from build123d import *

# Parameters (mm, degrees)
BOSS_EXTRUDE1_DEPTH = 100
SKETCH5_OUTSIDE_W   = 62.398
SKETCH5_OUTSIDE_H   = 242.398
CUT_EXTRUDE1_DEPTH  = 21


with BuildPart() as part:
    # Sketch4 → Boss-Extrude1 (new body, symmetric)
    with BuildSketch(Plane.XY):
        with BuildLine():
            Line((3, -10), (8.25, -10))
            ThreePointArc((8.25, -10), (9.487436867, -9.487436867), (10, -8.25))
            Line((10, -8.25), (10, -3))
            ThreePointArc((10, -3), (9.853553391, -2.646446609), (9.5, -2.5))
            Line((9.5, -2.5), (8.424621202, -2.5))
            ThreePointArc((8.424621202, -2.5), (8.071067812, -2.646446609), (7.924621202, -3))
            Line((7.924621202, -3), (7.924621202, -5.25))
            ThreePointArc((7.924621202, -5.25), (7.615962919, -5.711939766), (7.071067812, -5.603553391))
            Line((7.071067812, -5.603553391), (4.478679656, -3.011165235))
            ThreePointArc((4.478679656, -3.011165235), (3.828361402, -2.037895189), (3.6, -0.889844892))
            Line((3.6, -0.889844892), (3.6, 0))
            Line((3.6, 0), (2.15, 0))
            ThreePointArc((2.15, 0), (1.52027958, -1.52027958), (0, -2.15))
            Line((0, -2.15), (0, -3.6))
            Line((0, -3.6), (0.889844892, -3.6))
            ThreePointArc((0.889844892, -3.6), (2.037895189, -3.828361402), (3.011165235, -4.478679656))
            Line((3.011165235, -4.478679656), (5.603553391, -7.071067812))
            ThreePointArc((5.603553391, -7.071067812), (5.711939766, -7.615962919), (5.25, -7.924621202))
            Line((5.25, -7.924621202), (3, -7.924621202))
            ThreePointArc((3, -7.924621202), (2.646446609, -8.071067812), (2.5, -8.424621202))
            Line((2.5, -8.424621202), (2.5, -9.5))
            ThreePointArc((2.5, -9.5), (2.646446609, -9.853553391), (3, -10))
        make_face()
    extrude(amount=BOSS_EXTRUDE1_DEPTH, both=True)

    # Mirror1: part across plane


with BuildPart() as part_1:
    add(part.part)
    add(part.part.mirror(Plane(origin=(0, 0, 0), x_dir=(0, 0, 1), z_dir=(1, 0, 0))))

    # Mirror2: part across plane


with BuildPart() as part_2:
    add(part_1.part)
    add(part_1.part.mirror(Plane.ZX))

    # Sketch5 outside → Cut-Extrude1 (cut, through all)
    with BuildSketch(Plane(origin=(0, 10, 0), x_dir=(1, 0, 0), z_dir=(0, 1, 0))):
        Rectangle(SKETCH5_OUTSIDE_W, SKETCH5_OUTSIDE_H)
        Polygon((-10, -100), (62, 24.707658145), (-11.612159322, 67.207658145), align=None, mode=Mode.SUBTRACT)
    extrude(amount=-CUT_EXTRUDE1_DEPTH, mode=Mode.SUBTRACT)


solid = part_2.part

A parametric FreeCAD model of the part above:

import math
import FreeCAD as App
import Part
import Sketcher
from FreeCAD import Vector
Q = App.Units.Quantity

doc = App.newDocument("Part")
body = doc.addObject("PartDesign::Body", "Body")

# Sketch on XY plane
sketch1 = body.newObject("Sketcher::SketchObject", "Sketch")
sketch1.AttachmentSupport = (doc.getObject("XY_Plane"), [""])
sketch1.MapMode = "FlatFace"
sketch1.addGeometry([
    Part.LineSegment(Vector(3, -10, 0), Vector(8.25, -10, 0)),  # 0
    Part.ArcOfCircle(Part.Circle(Vector(8.25, -8.25, 0), Vector(0, 0, 1), 1.75), math.radians(-90), math.radians(0)),  # 1
    Part.LineSegment(Vector(10, -8.25, 0), Vector(10, -3, 0)),  # 2
    Part.ArcOfCircle(Part.Circle(Vector(9.5, -3, 0), Vector(0, 0, 1), 0.5), math.radians(0), math.radians(90)),  # 3
    Part.LineSegment(Vector(9.5, -2.5, 0), Vector(8.42, -2.5, 0)),  # 4
    Part.ArcOfCircle(Part.Circle(Vector(8.42, -3, 0), Vector(0, 0, 1), 0.5), math.radians(90), math.radians(180)),  # 5
    Part.LineSegment(Vector(7.92, -3, 0), Vector(7.92, -5.25, 0)),  # 6
    Part.ArcOfCircle(Part.Circle(Vector(7.42, -5.25, 0), Vector(0, 0, 1), 0.5), math.radians(-135), math.radians(0)),  # 7
    Part.LineSegment(Vector(7.07, -5.6, 0), Vector(4.48, -3.01, 0)),  # 8
    Part.ArcOfCircle(Part.Circle(Vector(6.6, -0.89, 0), Vector(0, 0, 1), 3), math.radians(180), math.radians(225)),  # 9
    Part.LineSegment(Vector(3.6, -0.89, 0), Vector(3.6, 0, 0)),  # 10
    Part.LineSegment(Vector(3.6, 0, 0), Vector(2.15, 0, 0)),  # 11
    Part.ArcOfCircle(Part.Circle(Vector(0, 0, 0), Vector(0, 0, 1), 2.15), math.radians(-90), math.radians(0)),  # 12
    Part.LineSegment(Vector(0, -2.15, 0), Vector(0, -3.6, 0)),  # 13
    Part.LineSegment(Vector(0, -3.6, 0), Vector(0.89, -3.6, 0)),  # 14
    Part.ArcOfCircle(Part.Circle(Vector(0.89, -6.6, 0), Vector(0, 0, 1), 3), math.radians(45), math.radians(90)),  # 15
    Part.LineSegment(Vector(3.01, -4.48, 0), Vector(5.6, -7.07, 0)),  # 16
    Part.ArcOfCircle(Part.Circle(Vector(5.25, -7.42, 0), Vector(0, 0, 1), 0.5), math.radians(-90), math.radians(45)),  # 17
    Part.LineSegment(Vector(5.25, -7.92, 0), Vector(3, -7.92, 0)),  # 18
    Part.ArcOfCircle(Part.Circle(Vector(3, -8.42, 0), Vector(0, 0, 1), 0.5), math.radians(90), math.radians(180)),  # 19
    Part.LineSegment(Vector(2.5, -8.42, 0), Vector(2.5, -9.5, 0)),  # 20
    Part.ArcOfCircle(Part.Circle(Vector(3, -9.5, 0), Vector(0, 0, 1), 0.5), math.radians(180), math.radians(270)),  # 21
], False)
sketch1.addConstraint([
    Sketcher.Constraint("Tangent", 0, 2, 1, 1),
    Sketcher.Constraint("Tangent", 1, 2, 2, 1),
    Sketcher.Constraint("Tangent", 2, 2, 3, 1),
    Sketcher.Constraint("Tangent", 3, 2, 4, 1),
    Sketcher.Constraint("Tangent", 4, 2, 5, 1),
    Sketcher.Constraint("Tangent", 5, 2, 6, 1),
    Sketcher.Constraint("Tangent", 6, 2, 7, 2),
    Sketcher.Constraint("Tangent", 7, 1, 8, 1),
    Sketcher.Constraint("Tangent", 8, 2, 9, 2),
    Sketcher.Constraint("Tangent", 9, 1, 10, 1),
    Sketcher.Constraint("Coincident", 10, 2, 11, 1),
    Sketcher.Constraint("Coincident", 11, 2, 12, 2),
    Sketcher.Constraint("Coincident", 12, 1, 13, 1),
    Sketcher.Constraint("Coincident", 13, 2, 14, 1),
    Sketcher.Constraint("Tangent", 14, 2, 15, 2),
    Sketcher.Constraint("Tangent", 15, 1, 16, 1),
    Sketcher.Constraint("Tangent", 16, 2, 17, 2),
    Sketcher.Constraint("Tangent", 17, 1, 18, 1),
    Sketcher.Constraint("Tangent", 18, 2, 19, 1),
    Sketcher.Constraint("Tangent", 19, 2, 20, 1),
    Sketcher.Constraint("Tangent", 20, 2, 21, 1),
    Sketcher.Constraint("Tangent", 21, 2, 0, 1),
    Sketcher.Constraint("Horizontal", 0),
    Sketcher.Constraint("Vertical", 2),
    Sketcher.Constraint("Horizontal", 4),
    Sketcher.Constraint("Vertical", 6),
    Sketcher.Constraint("Vertical", 10),
    Sketcher.Constraint("Horizontal", 11),
    Sketcher.Constraint("Vertical", 13),
    Sketcher.Constraint("Horizontal", 14),
    Sketcher.Constraint("Horizontal", 18),
    Sketcher.Constraint("Vertical", 20),
    Sketcher.Constraint("Coincident", 12, 3, -1, 1),
    Sketcher.Constraint("Equal", 3, 5),
    Sketcher.Constraint("Equal", 5, 7),
    Sketcher.Constraint("Equal", 9, 15),
    Sketcher.Constraint("Equal", 7, 17),
    Sketcher.Constraint("Equal", 17, 19),
    Sketcher.Constraint("Equal", 19, 21),
    Sketcher.Constraint("PointOnObject", 10, 2, -1),
    Sketcher.Constraint("PointOnObject", 12, 1, -2),
    Sketcher.Constraint("Parallel", 8, 16),
    Sketcher.Constraint("Equal", 0, 2),
    Sketcher.Constraint("Equal", 18, 6),
    Sketcher.Constraint("Equal", 14, 10),
    Sketcher.Constraint("Equal", 11, 13),
    Sketcher.Constraint("Equal", 4, 20),
    Sketcher.Constraint("Equal", 8, 16),
    Sketcher.Constraint("Radius", 9, Q("3 mm")),
    Sketcher.Constraint("Radius", 3, Q("0.5 mm")),
    Sketcher.Constraint("Radius", 1, Q("1.75 mm")),
    Sketcher.Constraint("Radius", 12, Q("2.15 mm")),
    Sketcher.Constraint("DistanceY", 3, 3, -1, 1, Q("3 mm")),
    Sketcher.Constraint("DistanceY", 0, 2, -1, 1, Q("10 mm")),
    Sketcher.Constraint("DistanceY", 1, 3, 7, 3, Q("3 mm")),
    Sketcher.Constraint("DistanceX", 11, 2, 11, 1, Q("1.45 mm")),
    Sketcher.Constraint("DistanceX", 4, 2, 4, 1, Q("1.075379 mm")),
])
pad1 = body.newObject("PartDesign::Pad", "Pad")
pad1.Profile = sketch1
pad1.Length = 200
pad1.Midplane = True
body2 = doc.addObject("PartDesign::Body", "Body001")
doc.recompute()

body2.BaseFeature = body
doc.recompute()

mirroring = doc.addObject("Part::Mirroring", "Mirroring")
mirroring.Source = body
mirroring.Base = Vector(0, 0, 0)
mirroring.Normal = Vector(1, 0, 0)
body3 = doc.addObject("PartDesign::Body", "Body002")
body3.BaseFeature = mirroring
boolean = body2.newObject("PartDesign::Boolean", "Boolean")
boolean.Type = "Fuse"
boolean.addObjects([body3])
doc.recompute()
body4 = doc.addObject("PartDesign::Body", "Body003")
doc.recompute()

body4.BaseFeature = body2
doc.recompute()

mirroring2 = doc.addObject("Part::Mirroring", "Mirroring001")
mirroring2.Source = body2
mirroring2.Base = Vector(0, 0, 0)
mirroring2.Normal = Vector(0, 1, 0)
body5 = doc.addObject("PartDesign::Body", "Body004")
body5.BaseFeature = mirroring2
boolean2 = body4.newObject("PartDesign::Boolean", "Boolean001")
boolean2.Type = "Fuse"
boolean2.addObjects([body5])
doc.recompute()

# Sketch on XZ plane
sketch2 = body4.newObject("Sketcher::SketchObject", "Sketch001")
sketch2.AttachmentSupport = (doc.getObject("XZ_Plane003"), [""])
sketch2.MapMode = "FlatFace"
sketch2.AttachmentOffset = App.Placement(Vector(0, 0, -10), App.Rotation())
sketch2.addGeometry([
    Part.LineSegment(Vector(-31, -121, 0), Vector(-31, 121, 0)),  # 0
    Part.LineSegment(Vector(-31, 121, 0), Vector(31, 121, 0)),  # 1
    Part.LineSegment(Vector(31, 121, 0), Vector(31, 29, 0)),  # 2
    Part.LineSegment(Vector(31, 29, 0), Vector(-10, 100, 0)),  # 3
    Part.LineSegment(Vector(-10, 100, 0), Vector(-12, -67, 0)),  # 4
    Part.LineSegment(Vector(-12, -67, 0), Vector(31, -42, 0)),  # 5
    Part.LineSegment(Vector(31, -42, 0), Vector(31, -121, 0)),  # 6
    Part.LineSegment(Vector(31, -121, 0), Vector(-31, -121, 0)),  # 7
], False)
sketch2.addConstraint([
    Sketcher.Constraint("Coincident", 0, 2, 1, 1),
    Sketcher.Constraint("Coincident", 1, 2, 2, 1),
    Sketcher.Constraint("Coincident", 2, 2, 3, 1),
    Sketcher.Constraint("Coincident", 3, 2, 4, 1),
    Sketcher.Constraint("Coincident", 4, 2, 5, 1),
    Sketcher.Constraint("Coincident", 5, 2, 6, 1),
    Sketcher.Constraint("Coincident", 6, 2, 7, 1),
    Sketcher.Constraint("Coincident", 7, 2, 0, 1),
    Sketcher.Constraint("Vertical", 0),
    Sketcher.Constraint("Horizontal", 1),
    Sketcher.Constraint("Vertical", 2),
    Sketcher.Constraint("Vertical", 6),
    Sketcher.Constraint("Horizontal", 7),
    Sketcher.Constraint("Symmetric", 0, 2, 6, 2, -1, 1),
    Sketcher.Constraint("Perpendicular", 3, 5),
    Sketcher.Constraint("Vertical", 2, 2, 5, 2),
    Sketcher.Constraint("Angle", 3, Q("120 deg")),
    Sketcher.Constraint("DistanceX", 3, 2, -1, 1, Q("10 mm")),
    Sketcher.Constraint("DistanceY", -1, 1, 3, 2, Q("100 mm")),
    Sketcher.Constraint("DistanceX", 1, 1, 1, 2, Q("62.398 mm")),
    Sketcher.Constraint("DistanceY", 0, 1, 0, 2, Q("242.398 mm")),
    Sketcher.Constraint("Distance", 4, Q("167.21543 mm")),
    Sketcher.Constraint("Distance", 5, Q("49.434069 mm")),
])
pocket1 = body4.newObject("PartDesign::Pocket", "Pocket")
pocket1.Profile = sketch2
pocket1.Type = "ThroughAll"
pocket1.Reversed = True
mirroring.Visibility = False
mirroring2.Visibility = False

doc.recompute()
